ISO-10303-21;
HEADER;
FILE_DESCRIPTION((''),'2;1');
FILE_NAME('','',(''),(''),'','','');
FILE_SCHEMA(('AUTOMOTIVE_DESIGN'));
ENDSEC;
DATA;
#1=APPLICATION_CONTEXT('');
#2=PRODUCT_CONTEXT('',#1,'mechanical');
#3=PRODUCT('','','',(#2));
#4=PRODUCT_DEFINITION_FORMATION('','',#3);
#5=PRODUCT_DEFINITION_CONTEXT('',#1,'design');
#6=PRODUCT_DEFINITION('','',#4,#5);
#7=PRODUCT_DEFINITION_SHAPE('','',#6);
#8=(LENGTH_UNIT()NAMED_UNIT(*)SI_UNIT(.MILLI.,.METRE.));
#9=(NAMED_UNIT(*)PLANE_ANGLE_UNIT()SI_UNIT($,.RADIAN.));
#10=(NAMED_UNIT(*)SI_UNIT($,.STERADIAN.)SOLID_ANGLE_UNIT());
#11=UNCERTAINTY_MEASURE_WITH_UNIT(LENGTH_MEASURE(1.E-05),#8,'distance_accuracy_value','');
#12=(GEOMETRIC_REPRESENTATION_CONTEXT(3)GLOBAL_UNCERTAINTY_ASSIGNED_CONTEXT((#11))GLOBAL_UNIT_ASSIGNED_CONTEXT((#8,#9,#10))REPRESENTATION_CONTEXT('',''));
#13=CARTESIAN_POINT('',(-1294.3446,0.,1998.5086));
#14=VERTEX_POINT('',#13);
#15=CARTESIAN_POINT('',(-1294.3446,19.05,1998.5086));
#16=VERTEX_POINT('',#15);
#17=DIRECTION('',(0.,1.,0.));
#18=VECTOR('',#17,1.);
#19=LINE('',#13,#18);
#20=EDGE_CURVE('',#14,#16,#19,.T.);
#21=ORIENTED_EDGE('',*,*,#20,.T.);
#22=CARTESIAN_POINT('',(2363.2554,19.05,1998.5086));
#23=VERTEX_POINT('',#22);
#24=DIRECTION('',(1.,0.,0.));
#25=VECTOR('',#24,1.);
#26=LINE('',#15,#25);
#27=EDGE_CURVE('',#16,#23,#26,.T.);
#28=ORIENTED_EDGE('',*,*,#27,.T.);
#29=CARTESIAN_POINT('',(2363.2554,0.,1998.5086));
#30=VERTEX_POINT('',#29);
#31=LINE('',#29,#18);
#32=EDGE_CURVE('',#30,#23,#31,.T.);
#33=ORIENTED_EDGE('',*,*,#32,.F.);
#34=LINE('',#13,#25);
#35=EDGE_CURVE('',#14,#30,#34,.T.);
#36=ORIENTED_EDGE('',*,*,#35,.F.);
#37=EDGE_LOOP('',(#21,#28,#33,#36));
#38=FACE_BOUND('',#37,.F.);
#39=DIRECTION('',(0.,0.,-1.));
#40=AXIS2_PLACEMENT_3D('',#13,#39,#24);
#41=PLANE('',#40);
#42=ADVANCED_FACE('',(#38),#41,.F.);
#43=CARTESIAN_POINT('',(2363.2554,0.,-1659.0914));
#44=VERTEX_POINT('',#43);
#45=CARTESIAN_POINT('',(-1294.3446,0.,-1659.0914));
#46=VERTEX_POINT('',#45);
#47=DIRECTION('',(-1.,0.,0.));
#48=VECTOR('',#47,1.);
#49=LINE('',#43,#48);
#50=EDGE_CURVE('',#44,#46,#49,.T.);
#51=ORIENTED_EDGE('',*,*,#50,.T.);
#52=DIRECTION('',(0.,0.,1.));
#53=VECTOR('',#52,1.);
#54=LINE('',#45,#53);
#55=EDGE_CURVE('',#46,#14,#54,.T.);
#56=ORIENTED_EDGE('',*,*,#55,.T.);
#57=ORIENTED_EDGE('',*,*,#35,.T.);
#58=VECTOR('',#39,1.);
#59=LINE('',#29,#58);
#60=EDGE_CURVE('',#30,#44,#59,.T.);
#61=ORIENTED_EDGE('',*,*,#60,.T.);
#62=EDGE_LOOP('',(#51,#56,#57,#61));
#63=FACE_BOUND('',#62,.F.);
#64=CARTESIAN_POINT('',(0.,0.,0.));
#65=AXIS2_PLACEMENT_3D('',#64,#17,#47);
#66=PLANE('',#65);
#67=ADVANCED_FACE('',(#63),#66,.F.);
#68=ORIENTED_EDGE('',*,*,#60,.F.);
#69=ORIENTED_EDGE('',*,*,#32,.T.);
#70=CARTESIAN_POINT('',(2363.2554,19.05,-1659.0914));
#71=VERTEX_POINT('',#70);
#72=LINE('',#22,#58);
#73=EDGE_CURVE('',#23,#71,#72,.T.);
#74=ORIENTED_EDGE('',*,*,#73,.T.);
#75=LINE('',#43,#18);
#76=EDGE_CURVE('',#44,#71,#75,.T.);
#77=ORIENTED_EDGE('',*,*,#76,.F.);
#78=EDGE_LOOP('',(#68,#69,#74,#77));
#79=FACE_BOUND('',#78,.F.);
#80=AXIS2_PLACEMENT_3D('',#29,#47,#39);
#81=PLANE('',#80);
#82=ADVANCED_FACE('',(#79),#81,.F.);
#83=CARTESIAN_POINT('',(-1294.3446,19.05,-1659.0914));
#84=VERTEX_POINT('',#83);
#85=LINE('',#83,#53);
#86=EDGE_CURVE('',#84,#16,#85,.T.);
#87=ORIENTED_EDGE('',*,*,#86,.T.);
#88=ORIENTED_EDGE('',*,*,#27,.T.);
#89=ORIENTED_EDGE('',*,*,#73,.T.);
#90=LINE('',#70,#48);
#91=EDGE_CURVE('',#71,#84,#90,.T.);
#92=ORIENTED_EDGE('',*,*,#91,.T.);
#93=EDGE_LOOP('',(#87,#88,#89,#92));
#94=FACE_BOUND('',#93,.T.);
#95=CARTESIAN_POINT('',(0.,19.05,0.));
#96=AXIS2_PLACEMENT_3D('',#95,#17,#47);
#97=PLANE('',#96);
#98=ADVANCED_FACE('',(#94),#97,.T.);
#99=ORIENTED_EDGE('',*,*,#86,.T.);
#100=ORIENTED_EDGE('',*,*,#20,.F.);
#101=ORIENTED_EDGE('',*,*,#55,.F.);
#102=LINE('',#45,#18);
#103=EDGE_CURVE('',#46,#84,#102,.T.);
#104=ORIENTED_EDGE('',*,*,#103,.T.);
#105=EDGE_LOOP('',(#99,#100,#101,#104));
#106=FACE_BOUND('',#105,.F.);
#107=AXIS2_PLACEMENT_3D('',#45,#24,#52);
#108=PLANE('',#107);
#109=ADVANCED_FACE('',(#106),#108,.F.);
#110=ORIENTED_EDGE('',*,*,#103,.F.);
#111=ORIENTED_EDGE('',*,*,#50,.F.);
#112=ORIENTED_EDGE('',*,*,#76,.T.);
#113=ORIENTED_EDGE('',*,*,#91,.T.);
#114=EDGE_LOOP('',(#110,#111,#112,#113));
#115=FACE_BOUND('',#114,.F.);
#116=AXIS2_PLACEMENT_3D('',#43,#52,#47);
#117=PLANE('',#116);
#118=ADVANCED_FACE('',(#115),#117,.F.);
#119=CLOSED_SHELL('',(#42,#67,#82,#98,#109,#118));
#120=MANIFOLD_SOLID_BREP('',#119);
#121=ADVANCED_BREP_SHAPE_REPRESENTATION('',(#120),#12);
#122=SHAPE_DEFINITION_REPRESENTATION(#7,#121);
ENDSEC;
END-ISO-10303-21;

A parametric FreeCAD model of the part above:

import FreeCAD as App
import Part
import Sketcher
Q = App.Units.Quantity

doc = App.newDocument("Part")
body = doc.addObject("PartDesign::Body", "Body")

# Sketch on XZ plane
sketch1 = body.newObject("Sketcher::SketchObject", "Sketch")
sketch1.AttachmentSupport = (doc.getObject("XZ_Plane"), [""])
sketch1.MapMode = "FlatFace"
sketch1.addGeometry([
    Part.LineSegment(App.Vector(-1294, -1659, 0), App.Vector(-1294, 1999, 0)),
    Part.LineSegment(App.Vector(-1294, 1999, 0), App.Vector(2363, 1999, 0)),
    Part.LineSegment(App.Vector(2363, 1999, 0), App.Vector(2363, -1659, 0)),
    Part.LineSegment(App.Vector(2363, -1659, 0), App.Vector(-1294, -1659, 0)),
], False)
sketch1.addConstraint([
    Sketcher.Constraint("Coincident", 0, 2, 1, 1),
    Sketcher.Constraint("Coincident", 1, 2, 2, 1),
    Sketcher.Constraint("Coincident", 2, 2, 3, 1),
    Sketcher.Constraint("Coincident", 3, 2, 0, 1),
    Sketcher.Constraint("Vertical", 0),
    Sketcher.Constraint("Horizontal", 1),
    Sketcher.Constraint("Vertical", 2),
    Sketcher.Constraint("Horizontal", 3),
    Sketcher.Constraint("Equal", 3, 0),
    Sketcher.Constraint("DistanceX", 1, 1, 1, 2, Q("144 in")),
    Sketcher.Constraint("DistanceX", 0, 2, -1, 1, Q("1294.3446 mm")),
    Sketcher.Constraint("DistanceY", -1, 1, 0, 2, Q("1998.5086 mm")),
])
pad1 = body.newObject("PartDesign::Pad", "Pad")
pad1.Profile = sketch1
pad1.Length = Q("0.75 in")
pad1.Reversed = True

doc.recompute()
